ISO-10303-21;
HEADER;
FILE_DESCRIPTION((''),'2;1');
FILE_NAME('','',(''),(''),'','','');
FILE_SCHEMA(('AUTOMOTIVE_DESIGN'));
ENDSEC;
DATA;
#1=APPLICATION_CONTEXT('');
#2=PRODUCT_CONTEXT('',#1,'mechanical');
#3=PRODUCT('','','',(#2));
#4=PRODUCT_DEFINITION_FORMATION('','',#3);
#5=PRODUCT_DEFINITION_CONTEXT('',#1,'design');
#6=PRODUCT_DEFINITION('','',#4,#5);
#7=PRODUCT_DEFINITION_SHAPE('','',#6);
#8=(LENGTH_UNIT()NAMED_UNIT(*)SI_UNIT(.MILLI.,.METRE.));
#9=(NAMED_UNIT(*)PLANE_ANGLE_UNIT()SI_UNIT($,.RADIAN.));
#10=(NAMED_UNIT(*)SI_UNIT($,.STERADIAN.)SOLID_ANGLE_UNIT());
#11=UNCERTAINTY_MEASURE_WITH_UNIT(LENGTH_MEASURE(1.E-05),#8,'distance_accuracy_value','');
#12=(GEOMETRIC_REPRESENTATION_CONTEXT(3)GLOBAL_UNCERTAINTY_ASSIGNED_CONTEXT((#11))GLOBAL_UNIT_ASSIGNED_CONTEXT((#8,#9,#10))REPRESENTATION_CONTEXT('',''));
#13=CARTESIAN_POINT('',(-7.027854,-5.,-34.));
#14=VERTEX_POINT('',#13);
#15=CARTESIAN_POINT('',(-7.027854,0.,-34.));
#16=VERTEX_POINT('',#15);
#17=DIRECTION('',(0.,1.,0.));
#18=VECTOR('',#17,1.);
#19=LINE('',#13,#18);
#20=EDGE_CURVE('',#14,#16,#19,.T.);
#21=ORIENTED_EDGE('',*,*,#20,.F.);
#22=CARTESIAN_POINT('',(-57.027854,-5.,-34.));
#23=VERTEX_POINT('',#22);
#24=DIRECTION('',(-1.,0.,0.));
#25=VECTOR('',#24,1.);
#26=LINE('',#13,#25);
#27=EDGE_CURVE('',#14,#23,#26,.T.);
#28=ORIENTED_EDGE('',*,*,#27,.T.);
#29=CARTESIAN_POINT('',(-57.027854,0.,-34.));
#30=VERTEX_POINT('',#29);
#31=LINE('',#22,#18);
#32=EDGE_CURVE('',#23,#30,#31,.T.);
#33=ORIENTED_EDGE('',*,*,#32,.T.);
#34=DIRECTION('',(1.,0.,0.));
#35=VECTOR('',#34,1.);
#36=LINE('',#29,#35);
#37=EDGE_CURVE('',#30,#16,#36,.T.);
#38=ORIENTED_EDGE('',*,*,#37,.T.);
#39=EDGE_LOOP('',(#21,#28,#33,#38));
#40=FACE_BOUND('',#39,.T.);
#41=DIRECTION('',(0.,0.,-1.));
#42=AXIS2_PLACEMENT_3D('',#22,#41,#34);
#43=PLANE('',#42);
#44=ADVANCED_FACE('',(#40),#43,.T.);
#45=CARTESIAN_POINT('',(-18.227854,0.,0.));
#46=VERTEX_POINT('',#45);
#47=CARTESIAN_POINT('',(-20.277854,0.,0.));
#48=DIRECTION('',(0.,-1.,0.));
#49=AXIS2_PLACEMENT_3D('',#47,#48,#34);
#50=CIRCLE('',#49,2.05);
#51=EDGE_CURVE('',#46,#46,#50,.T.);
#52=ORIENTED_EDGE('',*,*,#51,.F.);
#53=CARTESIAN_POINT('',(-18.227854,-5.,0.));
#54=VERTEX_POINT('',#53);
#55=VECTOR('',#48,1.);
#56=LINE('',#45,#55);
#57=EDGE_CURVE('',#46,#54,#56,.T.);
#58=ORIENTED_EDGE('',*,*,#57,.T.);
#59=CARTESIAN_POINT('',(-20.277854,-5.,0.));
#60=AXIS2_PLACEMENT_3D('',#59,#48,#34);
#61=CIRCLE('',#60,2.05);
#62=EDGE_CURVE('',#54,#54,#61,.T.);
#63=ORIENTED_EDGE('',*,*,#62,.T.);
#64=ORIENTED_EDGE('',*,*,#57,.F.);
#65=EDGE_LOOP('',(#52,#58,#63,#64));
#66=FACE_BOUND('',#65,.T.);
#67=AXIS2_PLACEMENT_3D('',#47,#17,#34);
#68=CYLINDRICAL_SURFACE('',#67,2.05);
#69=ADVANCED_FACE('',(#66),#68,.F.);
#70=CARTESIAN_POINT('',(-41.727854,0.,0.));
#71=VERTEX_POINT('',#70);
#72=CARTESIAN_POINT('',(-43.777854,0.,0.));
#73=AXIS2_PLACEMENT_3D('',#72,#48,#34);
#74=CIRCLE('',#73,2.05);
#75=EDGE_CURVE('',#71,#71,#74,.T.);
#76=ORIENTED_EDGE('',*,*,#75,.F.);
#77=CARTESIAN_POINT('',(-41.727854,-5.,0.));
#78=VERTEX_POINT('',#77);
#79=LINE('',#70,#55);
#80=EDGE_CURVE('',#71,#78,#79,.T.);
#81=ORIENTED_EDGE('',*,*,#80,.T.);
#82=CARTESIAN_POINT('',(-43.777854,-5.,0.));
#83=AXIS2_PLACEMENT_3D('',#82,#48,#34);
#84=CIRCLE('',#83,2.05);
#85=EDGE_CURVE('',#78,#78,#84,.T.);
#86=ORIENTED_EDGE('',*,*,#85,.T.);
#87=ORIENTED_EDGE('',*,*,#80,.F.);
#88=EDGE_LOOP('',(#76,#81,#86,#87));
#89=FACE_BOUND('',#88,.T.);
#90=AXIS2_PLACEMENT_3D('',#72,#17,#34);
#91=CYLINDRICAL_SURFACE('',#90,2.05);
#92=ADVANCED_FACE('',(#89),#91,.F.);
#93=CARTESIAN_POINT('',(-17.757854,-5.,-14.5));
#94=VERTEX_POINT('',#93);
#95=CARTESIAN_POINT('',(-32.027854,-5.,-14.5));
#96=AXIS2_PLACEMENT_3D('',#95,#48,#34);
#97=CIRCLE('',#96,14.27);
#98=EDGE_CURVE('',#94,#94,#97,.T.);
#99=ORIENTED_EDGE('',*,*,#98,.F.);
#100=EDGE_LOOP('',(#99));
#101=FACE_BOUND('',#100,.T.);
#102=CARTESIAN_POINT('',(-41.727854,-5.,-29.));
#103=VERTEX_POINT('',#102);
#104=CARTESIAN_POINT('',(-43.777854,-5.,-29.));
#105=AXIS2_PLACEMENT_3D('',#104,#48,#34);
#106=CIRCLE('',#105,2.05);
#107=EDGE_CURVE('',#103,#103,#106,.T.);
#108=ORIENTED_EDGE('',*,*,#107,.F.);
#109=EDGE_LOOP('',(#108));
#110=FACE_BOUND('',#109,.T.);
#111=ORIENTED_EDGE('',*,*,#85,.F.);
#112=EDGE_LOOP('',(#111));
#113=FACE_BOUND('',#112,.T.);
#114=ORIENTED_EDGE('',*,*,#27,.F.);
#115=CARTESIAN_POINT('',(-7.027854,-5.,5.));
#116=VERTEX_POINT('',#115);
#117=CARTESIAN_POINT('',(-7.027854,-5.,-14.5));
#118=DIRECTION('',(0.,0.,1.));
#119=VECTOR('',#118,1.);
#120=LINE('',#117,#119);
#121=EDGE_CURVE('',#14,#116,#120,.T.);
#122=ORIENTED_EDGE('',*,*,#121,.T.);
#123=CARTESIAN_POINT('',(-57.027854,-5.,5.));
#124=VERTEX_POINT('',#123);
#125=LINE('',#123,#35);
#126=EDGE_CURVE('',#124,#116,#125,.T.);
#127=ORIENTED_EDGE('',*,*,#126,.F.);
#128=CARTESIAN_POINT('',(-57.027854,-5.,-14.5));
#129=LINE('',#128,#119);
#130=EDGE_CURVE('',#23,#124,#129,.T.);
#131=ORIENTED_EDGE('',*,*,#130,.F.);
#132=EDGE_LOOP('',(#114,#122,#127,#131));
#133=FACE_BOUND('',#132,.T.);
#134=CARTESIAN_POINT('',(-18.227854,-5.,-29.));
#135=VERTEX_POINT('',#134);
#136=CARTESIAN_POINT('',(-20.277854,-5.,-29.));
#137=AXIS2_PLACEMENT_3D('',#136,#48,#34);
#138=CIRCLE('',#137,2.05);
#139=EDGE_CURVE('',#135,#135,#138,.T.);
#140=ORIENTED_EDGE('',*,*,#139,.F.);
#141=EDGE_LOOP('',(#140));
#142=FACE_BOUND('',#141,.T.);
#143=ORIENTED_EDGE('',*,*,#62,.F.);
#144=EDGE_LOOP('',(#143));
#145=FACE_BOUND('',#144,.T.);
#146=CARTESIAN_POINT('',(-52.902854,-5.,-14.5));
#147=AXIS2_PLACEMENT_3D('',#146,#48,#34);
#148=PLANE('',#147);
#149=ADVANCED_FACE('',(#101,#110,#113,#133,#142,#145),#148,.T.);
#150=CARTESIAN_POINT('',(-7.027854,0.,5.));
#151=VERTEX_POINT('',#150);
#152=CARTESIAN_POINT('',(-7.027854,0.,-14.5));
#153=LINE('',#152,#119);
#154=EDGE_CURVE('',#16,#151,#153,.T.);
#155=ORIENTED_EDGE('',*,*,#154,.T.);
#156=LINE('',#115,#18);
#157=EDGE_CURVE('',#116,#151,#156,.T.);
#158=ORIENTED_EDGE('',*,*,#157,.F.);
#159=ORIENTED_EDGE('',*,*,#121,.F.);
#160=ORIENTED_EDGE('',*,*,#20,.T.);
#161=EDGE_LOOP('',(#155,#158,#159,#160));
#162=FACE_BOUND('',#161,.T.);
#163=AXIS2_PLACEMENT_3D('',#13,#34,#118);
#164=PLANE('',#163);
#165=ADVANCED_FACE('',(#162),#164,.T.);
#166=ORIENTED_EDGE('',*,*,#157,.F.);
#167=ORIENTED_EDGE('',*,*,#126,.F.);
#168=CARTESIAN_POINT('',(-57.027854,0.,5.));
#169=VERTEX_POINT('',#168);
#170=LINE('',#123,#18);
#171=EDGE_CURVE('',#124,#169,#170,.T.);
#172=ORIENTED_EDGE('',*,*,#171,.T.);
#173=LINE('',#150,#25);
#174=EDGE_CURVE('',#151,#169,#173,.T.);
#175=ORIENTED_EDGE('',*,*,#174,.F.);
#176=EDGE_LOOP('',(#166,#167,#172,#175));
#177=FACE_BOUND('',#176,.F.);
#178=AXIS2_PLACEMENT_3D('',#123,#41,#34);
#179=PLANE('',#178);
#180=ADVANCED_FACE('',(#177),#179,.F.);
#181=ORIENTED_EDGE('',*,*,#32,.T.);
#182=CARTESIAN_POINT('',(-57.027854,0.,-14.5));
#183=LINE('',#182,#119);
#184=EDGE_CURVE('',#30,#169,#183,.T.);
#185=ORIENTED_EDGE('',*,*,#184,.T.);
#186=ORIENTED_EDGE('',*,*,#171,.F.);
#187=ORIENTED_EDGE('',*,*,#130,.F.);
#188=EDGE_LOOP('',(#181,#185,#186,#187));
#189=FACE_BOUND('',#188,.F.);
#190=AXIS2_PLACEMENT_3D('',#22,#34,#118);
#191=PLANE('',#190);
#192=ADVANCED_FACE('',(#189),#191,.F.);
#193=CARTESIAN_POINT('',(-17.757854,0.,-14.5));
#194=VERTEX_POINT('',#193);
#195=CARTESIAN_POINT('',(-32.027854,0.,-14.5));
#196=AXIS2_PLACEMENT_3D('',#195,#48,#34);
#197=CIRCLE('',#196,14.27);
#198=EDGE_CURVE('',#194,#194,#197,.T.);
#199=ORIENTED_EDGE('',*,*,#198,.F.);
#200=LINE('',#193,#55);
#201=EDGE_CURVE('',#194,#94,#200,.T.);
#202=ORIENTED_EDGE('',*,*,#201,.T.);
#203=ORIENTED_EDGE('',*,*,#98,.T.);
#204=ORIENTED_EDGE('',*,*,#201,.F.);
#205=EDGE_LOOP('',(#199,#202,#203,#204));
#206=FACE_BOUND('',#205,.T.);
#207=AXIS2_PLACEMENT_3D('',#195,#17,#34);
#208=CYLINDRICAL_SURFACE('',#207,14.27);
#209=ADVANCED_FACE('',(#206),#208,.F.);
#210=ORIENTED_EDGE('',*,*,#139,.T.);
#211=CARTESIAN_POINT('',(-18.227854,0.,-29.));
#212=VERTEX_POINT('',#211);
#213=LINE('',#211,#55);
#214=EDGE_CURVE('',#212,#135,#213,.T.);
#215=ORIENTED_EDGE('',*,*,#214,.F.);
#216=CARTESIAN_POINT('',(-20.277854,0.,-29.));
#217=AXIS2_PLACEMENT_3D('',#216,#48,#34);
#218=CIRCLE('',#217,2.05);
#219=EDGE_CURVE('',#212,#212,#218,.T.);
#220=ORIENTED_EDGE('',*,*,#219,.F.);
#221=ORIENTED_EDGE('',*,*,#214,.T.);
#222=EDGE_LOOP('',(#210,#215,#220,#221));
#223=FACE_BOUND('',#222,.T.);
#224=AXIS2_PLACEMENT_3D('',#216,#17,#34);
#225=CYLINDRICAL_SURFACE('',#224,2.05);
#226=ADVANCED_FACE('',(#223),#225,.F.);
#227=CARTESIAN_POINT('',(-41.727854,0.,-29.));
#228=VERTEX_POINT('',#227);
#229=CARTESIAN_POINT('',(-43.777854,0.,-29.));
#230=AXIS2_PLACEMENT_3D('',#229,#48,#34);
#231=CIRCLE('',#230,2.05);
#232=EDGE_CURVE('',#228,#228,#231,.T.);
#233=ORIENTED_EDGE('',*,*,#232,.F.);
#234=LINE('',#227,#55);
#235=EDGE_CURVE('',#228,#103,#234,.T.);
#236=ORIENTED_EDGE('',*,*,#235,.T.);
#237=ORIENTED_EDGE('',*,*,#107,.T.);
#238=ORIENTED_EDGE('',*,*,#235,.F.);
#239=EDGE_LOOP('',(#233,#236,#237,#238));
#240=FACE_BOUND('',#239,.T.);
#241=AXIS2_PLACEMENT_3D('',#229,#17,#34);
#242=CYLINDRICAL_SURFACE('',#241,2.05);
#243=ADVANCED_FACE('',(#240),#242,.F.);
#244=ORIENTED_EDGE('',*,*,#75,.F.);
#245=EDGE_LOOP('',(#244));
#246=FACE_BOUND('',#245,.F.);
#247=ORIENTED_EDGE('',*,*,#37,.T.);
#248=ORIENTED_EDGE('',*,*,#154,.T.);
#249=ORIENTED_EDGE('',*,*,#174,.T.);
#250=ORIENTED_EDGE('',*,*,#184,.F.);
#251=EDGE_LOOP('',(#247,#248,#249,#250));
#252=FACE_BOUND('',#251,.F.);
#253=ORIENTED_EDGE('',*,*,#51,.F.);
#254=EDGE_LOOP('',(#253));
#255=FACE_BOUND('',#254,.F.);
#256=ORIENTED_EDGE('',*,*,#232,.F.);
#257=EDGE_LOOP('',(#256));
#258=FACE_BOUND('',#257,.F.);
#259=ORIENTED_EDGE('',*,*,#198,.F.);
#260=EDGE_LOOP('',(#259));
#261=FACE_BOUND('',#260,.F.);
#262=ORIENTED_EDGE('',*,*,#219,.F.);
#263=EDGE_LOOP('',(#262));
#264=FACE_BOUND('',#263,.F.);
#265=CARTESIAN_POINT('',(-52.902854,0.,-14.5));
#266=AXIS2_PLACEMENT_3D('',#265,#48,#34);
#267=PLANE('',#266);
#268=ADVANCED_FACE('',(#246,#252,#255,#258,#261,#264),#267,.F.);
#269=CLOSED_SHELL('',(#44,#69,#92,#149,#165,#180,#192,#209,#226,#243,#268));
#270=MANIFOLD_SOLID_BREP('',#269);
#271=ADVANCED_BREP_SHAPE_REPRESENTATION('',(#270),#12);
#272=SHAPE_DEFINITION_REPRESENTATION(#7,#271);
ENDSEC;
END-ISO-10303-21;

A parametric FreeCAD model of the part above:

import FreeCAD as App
import Part
import Sketcher

V = App.Vector


def add_polygon(sketch, points):
    """Adds a closed chain of lines whose ends are joined by coincident constraints."""
    first, n = sketch.GeometryCount, len(points)
    for a, b in zip(points, points[1:] + points[:1]):
        sketch.addGeometry(Part.LineSegment(App.Vector(*a, 0), App.Vector(*b, 0)), False)
    for i in range(n):
        sketch.addConstraint(Sketcher.Constraint("Coincident", first + i, 2, first + (i + 1) % n, 1))

doc = App.newDocument("Part")
body = doc.addObject("PartDesign::Body", "Body")

# Sketch on XZ plane
sketch1 = body.newObject("Sketcher::SketchObject", "Sketch")
sketch1.AttachmentSupport = (doc.getObject("XZ_Plane"), [""])
sketch1.MapMode = "FlatFace"
add_polygon(sketch1, [(-48.8, 5), (-48.8, -34), (-15.3, -34), (-15.3, 5)])  # lines 0-3
sketch1.addGeometry(Part.Circle(V(-43.8, -29, 0), V(0, 0, 1), 2), False)  # 4
sketch1.addGeometry(Part.Circle(V(-20.3, -29, 0), V(0, 0, 1), 2), False)  # 5
sketch1.addGeometry(Part.Circle(V(-43.8, 0, 0), V(0, 0, 1), 2), False)  # 6
sketch1.addGeometry(Part.Circle(V(-32, -14.5, 0), V(0, 0, 1), 14.3), False)  # 7
sketch1.addGeometry(Part.Circle(V(-20.3, 0, 0), V(0, 0, 1), 2), False)  # 8
sketch1.addConstraint(Sketcher.Constraint("Vertical", 0))
sketch1.addConstraint(Sketcher.Constraint("Horizontal", 1))
sketch1.addConstraint(Sketcher.Constraint("Vertical", 2))
sketch1.addConstraint(Sketcher.Constraint("Horizontal", 3))
sketch1.addConstraint(Sketcher.Constraint("Equal", 4, 5))
sketch1.addConstraint(Sketcher.Constraint("Equal", 5, 6))
sketch1.addConstraint(Sketcher.Constraint("Equal", 6, 8))
sketch1.addConstraint(Sketcher.Constraint("PointOnObject", 6, 3, -1))
sketch1.addConstraint(Sketcher.Constraint("PointOnObject", 8, 3, -1))
sketch1.addConstraint(Sketcher.Constraint("Horizontal", 4, 3, 5, 3))
sketch1.addConstraint(Sketcher.Constraint("Vertical", 4, 3, 6, 3))
sketch1.addConstraint(Sketcher.Constraint("Vertical", 5, 3, 8, 3))
sketch1.addConstraint(Sketcher.Constraint("Diameter", 4, 4.1))
sketch1.addConstraint(Sketcher.Constraint("Diameter", 7, 28.54))
sketch1.addConstraint(Sketcher.Constraint("DistanceY", 0, 2, 0, 1, 39.0))
sketch1.addConstraint(Sketcher.Constraint("DistanceX", 1, 1, 1, 2, 33.5))
sketch1.addConstraint(Sketcher.Constraint("DistanceY", 4, 3, -1, 1, 29.0))
sketch1.addConstraint(Sketcher.Constraint("DistanceY", 0, 2, -1, 1, 34.0))
sketch1.addConstraint(Sketcher.Constraint("DistanceX", 0, 2, 4, 3, 5.0))
sketch1.addConstraint(Sketcher.Constraint("DistanceX", 5, 3, 1, 2, 5.0))
sketch1.addConstraint(Sketcher.Constraint("DistanceY", 7, 3, -1, 1, 14.5))
sketch1.addConstraint(Sketcher.Constraint("DistanceX", 4, 3, 7, 3, 11.75))
sketch1.addConstraint(Sketcher.Constraint("DistanceX", 4, 3, -1, 1, 43.777854))
pad1 = body.newObject("PartDesign::Pad", "Pad")
pad1.Profile = sketch1
pad1.Length = 5

# Sketch on XZ plane
sketch2 = body.newObject("Sketcher::SketchObject", "Sketch001")
sketch2.AttachmentSupport = (doc.getObject("XZ_Plane"), [""])
sketch2.MapMode = "FlatFace"
sketch2.AttachmentOffset = App.Placement(V(0, 0, 5), App.Rotation())
add_polygon(sketch2, [(-57, 5), (-57, -34), (-49, -34), (-49, 5)])  # lines 0-3
add_polygon(sketch2, [(-15, 5), (-15, -34), (-7, -34), (-7, 5)])  # lines 4-7
sketch2.addConstraint(Sketcher.Constraint("Vertical", 0))
sketch2.addConstraint(Sketcher.Constraint("Horizontal", 1))
sketch2.addConstraint(Sketcher.Constraint("Vertical", 2))
sketch2.addConstraint(Sketcher.Constraint("Horizontal", 3))
sketch2.addConstraint(Sketcher.Constraint("Vertical", 4))
sketch2.addConstraint(Sketcher.Constraint("Horizontal", 5))
sketch2.addConstraint(Sketcher.Constraint("Vertical", 6))
sketch2.addConstraint(Sketcher.Constraint("Horizontal", 7))
sketch2.addConstraint(Sketcher.Constraint("Horizontal", 1, 2, 4, 2))
sketch2.addConstraint(Sketcher.Constraint("Horizontal", 3, 2, 6, 2))
sketch2.addConstraint(Sketcher.Constraint("Equal", 3, 5))
sketch2.addConstraint(Sketcher.Constraint("DistanceY", 0, 2, 0, 1, 39.0))
sketch2.addConstraint(Sketcher.Constraint("DistanceY", 0, 2, -1, 1, 34.0))
sketch2.addConstraint(Sketcher.Constraint("DistanceX", 0, 2, 5, 2, 50.0))
sketch2.addConstraint(Sketcher.Constraint("DistanceX", 1, 1, 1, 2, 8.25))
sketch2.addConstraint(Sketcher.Constraint("DistanceX", 0, 2, -1, 1, 57.027854))
pad2 = body.newObject("PartDesign::Pad", "Pad001")
pad2.Profile = sketch2
pad2.Length = 5
pad2.Reversed = True

doc.recompute()
